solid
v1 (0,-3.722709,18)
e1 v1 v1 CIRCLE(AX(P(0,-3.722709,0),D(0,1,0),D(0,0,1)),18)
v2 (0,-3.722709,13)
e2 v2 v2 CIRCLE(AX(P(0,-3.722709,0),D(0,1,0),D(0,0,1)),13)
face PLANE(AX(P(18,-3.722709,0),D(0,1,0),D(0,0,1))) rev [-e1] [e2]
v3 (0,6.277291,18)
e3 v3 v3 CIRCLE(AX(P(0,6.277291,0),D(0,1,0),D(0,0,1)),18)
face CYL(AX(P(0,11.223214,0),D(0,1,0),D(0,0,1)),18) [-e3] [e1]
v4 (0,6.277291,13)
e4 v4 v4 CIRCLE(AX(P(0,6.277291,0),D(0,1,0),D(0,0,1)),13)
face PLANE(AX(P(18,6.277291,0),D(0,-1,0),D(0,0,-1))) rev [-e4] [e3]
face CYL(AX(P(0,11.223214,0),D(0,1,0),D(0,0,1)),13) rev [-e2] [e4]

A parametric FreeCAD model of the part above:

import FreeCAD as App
import Part
import Sketcher

V = App.Vector

doc = App.newDocument("Part")
params = doc.addObject("Spreadsheet::Sheet", "Params")
for row, (alias, value) in enumerate([
    ("sketch1_width", "5 mm"),
    ("sketch1_height", "10 mm"),
    ("revolution_angle", "360 deg"),
], start=1):
    params.set(f"A{row}", alias)
    params.set(f"B{row}", "=" + value)
    params.setAlias(f"B{row}", alias)

body = doc.addObject("PartDesign::Body", "Body")

# Sketch on XY plane
sketch1 = doc.addObject("Sketcher::SketchObject", "Sketch")
body.addObject(sketch1)
sketch1.AttachmentSupport = (doc.XY_Plane, [""])
sketch1.MapMode = "FlatFace"
sketch1.addGeometry(Part.LineSegment(V(13, 6, 0), V(13, -4, 0)), False)
sketch1.addGeometry(Part.LineSegment(V(13, -4, 0), V(18, -4, 0)), False)
sketch1.addGeometry(Part.LineSegment(V(18, -4, 0), V(18, 6, 0)), False)
sketch1.addGeometry(Part.LineSegment(V(18, 6, 0), V(13, 6, 0)), False)
sketch1.addConstraint(Sketcher.Constraint("Coincident", 0, 2, 1, 1))
sketch1.addConstraint(Sketcher.Constraint("Coincident", 1, 2, 2, 1))
sketch1.addConstraint(Sketcher.Constraint("Coincident", 2, 2, 3, 1))
sketch1.addConstraint(Sketcher.Constraint("Coincident", 3, 2, 0, 1))
sketch1.addConstraint(Sketcher.Constraint("Vertical", 0))
sketch1.addConstraint(Sketcher.Constraint("Horizontal", 1))
sketch1.addConstraint(Sketcher.Constraint("Vertical", 2))
sketch1.addConstraint(Sketcher.Constraint("Horizontal", 3))
sketch1.addConstraint(Sketcher.Constraint("DistanceX", 1, 1, 1, 2, 5.0))
sketch1.addConstraint(Sketcher.Constraint("DistanceY", 0, 2, 0, 1, 10.0))
sketch1.addConstraint(Sketcher.Constraint("DistanceX", -1, 1, 0, 2, 13.0))
sketch1.addConstraint(Sketcher.Constraint("DistanceY", 0, 2, -1, 1, 3.722709))
sketch1.setExpression("Constraints[8]", "Params.sketch1_width")
sketch1.setExpression("Constraints[9]", "Params.sketch1_height")
revolution = doc.addObject("PartDesign::Revolution", "Revolution")
body.addObject(revolution)
revolution.Profile = sketch1
revolution.ReferenceAxis = (sketch1, ["V_Axis"])
revolution.setExpression("Angle", "Params.revolution_angle")

doc.recompute()
